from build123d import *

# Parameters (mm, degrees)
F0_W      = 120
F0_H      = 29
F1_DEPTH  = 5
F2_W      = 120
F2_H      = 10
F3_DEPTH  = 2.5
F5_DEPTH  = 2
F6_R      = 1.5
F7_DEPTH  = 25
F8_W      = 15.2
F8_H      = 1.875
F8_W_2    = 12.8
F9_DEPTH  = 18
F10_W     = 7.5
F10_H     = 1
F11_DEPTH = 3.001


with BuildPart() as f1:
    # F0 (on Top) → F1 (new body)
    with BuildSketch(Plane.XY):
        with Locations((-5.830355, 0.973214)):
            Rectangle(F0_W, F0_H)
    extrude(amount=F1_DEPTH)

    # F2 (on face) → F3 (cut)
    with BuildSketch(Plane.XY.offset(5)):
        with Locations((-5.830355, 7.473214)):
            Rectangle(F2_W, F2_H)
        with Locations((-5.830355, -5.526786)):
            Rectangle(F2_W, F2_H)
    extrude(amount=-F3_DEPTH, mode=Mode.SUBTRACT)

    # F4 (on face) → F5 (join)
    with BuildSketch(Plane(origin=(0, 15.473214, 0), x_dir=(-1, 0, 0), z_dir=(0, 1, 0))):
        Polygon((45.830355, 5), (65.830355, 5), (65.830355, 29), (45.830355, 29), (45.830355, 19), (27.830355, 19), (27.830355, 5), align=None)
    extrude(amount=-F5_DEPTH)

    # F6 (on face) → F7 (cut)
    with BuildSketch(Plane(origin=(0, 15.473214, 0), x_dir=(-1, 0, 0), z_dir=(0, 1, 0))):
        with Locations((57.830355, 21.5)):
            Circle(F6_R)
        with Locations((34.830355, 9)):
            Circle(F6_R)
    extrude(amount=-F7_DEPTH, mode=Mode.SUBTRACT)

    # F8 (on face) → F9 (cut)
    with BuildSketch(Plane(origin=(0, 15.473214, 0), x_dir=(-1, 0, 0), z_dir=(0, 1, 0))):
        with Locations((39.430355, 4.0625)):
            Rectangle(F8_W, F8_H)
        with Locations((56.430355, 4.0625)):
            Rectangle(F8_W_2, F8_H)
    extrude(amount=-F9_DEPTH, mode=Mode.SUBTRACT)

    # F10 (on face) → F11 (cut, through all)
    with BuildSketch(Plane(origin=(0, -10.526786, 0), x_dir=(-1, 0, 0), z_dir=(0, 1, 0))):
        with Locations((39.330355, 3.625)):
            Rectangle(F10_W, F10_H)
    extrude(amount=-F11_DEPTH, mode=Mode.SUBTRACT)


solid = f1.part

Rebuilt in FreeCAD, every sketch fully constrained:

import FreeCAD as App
import Part
import Sketcher

V = App.Vector


def add_polygon(sketch, points):
    """Adds a closed chain of lines whose ends are joined by coincident constraints."""
    first, n = sketch.GeometryCount, len(points)
    for a, b in zip(points, points[1:] + points[:1]):
        sketch.addGeometry(Part.LineSegment(App.Vector(*a, 0), App.Vector(*b, 0)), False)
    for i in range(n):
        sketch.addConstraint(Sketcher.Constraint("Coincident", first + i, 2, first + (i + 1) % n, 1))

doc = App.newDocument("Part")
params = doc.addObject("Spreadsheet::Sheet", "Params")
for row, (alias, value) in enumerate([
    ("sketch1_width", "120 mm"),
    ("sketch1_height", "29 mm"),
    ("pad1_length", "5 mm"),
    ("sketch2_width", "120 mm"),
    ("sketch2_height", "10 mm"),
    ("pocket1_length", "2.5 mm"),
    ("sketch3_width", "20 mm"),
    ("sketch3_width2", "18 mm"),
    ("sketch3_height", "24 mm"),
    ("sketch3_height2", "10 mm"),
    ("pad2_length", "2 mm"),
    ("sketch4_diameter", "3 mm"),
    ("pocket2_length", "25 mm"),
    ("sketch5_width", "15.2 mm"),
    ("sketch5_width2", "12.8 mm"),
    ("pocket3_length", "18 mm"),
    ("sketch6_height", "1 mm"),
    ("sketch6_width", "7.5 mm"),
], start=1):
    params.set(f"A{row}", alias)
    params.set(f"B{row}", "=" + value)
    params.setAlias(f"B{row}", alias)

body = doc.addObject("PartDesign::Body", "Body")

# Sketch on XY plane
sketch1 = doc.addObject("Sketcher::SketchObject", "Sketch")
body.addObject(sketch1)
sketch1.AttachmentSupport = (doc.XY_Plane, [""])
sketch1.MapMode = "FlatFace"
add_polygon(sketch1, [(-65.830355, 15.473214), (-65.830355, -13.526786), (54.169645, -13.526786), (54.169645, 15.473214)])  # lines 0-3
sketch1.addConstraint([
    Sketcher.Constraint("Vertical", 0),
    Sketcher.Constraint("Horizontal", 1),
    Sketcher.Constraint("Vertical", 2),
    Sketcher.Constraint("Horizontal", 3),
    Sketcher.Constraint("DistanceX", 1, 1, 1, 2, 120.0),
    Sketcher.Constraint("DistanceY", 0, 2, 0, 1, 29.0),
    Sketcher.Constraint("DistanceX", 0, 2, -1, 1, 65.830355),
    Sketcher.Constraint("DistanceY", 0, 2, -1, 1, 13.526786),
])
sketch1.setExpression("Constraints[8]", "Params.sketch1_width")
sketch1.setExpression("Constraints[9]", "Params.sketch1_height")
pad1 = doc.addObject("PartDesign::Pad", "Pad")
body.addObject(pad1)
pad1.Profile = sketch1
pad1.setExpression("Length", "Params.pad1_length")

# Sketch on XY plane
sketch2 = doc.addObject("Sketcher::SketchObject", "Sketch001")
body.addObject(sketch2)
sketch2.AttachmentSupport = (doc.XY_Plane, [""])
sketch2.MapMode = "FlatFace"
sketch2.AttachmentOffset = App.Placement(V(0, 0, 5), App.Rotation())
add_polygon(sketch2, [(-65.830355, 12.473214), (-65.830355, 2.473214), (54.169645, 2.473214), (54.169645, 12.473214)])  # lines 0-3
add_polygon(sketch2, [(-65.830355, -0.526786), (-65.830355, -10.526786), (54.169645, -10.526786), (54.169645, -0.526786)])  # lines 4-7
sketch2.addConstraint([
    Sketcher.Constraint("Vertical", 0),
    Sketcher.Constraint("Horizontal", 1),
    Sketcher.Constraint("Vertical", 2),
    Sketcher.Constraint("Horizontal", 3),
    Sketcher.Constraint("Vertical", 4),
    Sketcher.Constraint("Horizontal", 5),
    Sketcher.Constraint("Vertical", 6),
    Sketcher.Constraint("Horizontal", 7),
    Sketcher.Constraint("Vertical", 3, 2, 4, 2),
    Sketcher.Constraint("Vertical", 2, 2, 5, 2),
    Sketcher.Constraint("Equal", 2, 4),
    Sketcher.Constraint("DistanceX", 1, 1, 1, 2, 120.0),
    Sketcher.Constraint("DistanceY", 0, 2, 0, 1, 10.0),
    Sketcher.Constraint("DistanceY", 4, 2, 0, 2, 13.0),
    Sketcher.Constraint("DistanceX", 0, 2, -1, 1, 65.830355),
    Sketcher.Constraint("DistanceY", -1, 1, 0, 2, 2.473214),
])
sketch2.setExpression("Constraints[19]", "Params.sketch2_width")
sketch2.setExpression("Constraints[20]", "Params.sketch2_height")
pocket1 = doc.addObject("PartDesign::Pocket", "Pocket")
body.addObject(pocket1)
pocket1.Profile = sketch2
pocket1.setExpression("Length", "Params.pocket1_length")

# Sketch on XZ plane
sketch3 = doc.addObject("Sketcher::SketchObject", "Sketch002")
body.addObject(sketch3)
sketch3.AttachmentSupport = (doc.XZ_Plane, [""])
sketch3.MapMode = "FlatFace"
sketch3.AttachmentOffset = App.Placement(V(0, 0, -15.473214), App.Rotation())
add_polygon(sketch3, [(-65.830355, 5), (-65.830355, 29), (-45.830355, 29), (-45.830355, 19), (-27.830355, 19), (-27.830355, 5)])  # lines 0-5
sketch3.addConstraint([
    Sketcher.Constraint("Vertical", 0),
    Sketcher.Constraint("Horizontal", 1),
    Sketcher.Constraint("Vertical", 2),
    Sketcher.Constraint("Horizontal", 3),
    Sketcher.Constraint("Vertical", 4),
    Sketcher.Constraint("Horizontal", 5),
    Sketcher.Constraint("DistanceX", 1, 1, 1, 2, 20.0),
    Sketcher.Constraint("DistanceX", 3, 1, 3, 2, 18.0),
    Sketcher.Constraint("DistanceY", 0, 1, 0, 2, 24.0),
    Sketcher.Constraint("DistanceY", 2, 2, 2, 1, 10.0),
    Sketcher.Constraint("DistanceY", -1, 1, 0, 2, 29.0),
    Sketcher.Constraint("DistanceX", 0, 2, -1, 1, 65.830355),
])
sketch3.setExpression("Constraints[12]", "Params.sketch3_width")
sketch3.setExpression("Constraints[13]", "Params.sketch3_width2")
sketch3.setExpression("Constraints[14]", "Params.sketch3_height")
sketch3.setExpression("Constraints[15]", "Params.sketch3_height2")
pad2 = doc.addObject("PartDesign::Pad", "Pad001")
body.addObject(pad2)
pad2.Profile = sketch3
pad2.setExpression("Length", "Params.pad2_length")

# Sketch on XZ plane
sketch4 = doc.addObject("Sketcher::SketchObject", "Sketch003")
body.addObject(sketch4)
sketch4.AttachmentSupport = (doc.XZ_Plane, [""])
sketch4.MapMode = "FlatFace"
sketch4.AttachmentOffset = App.Placement(V(0, 0, -15.473214), App.Rotation())
sketch4.addGeometry([
    Part.Circle(V(-57.830355, 21.5, 0), V(0, 0, 1), 1.5),
    Part.Circle(V(-34.830355, 9, 0), V(0, 0, 1), 1.5),
], False)
sketch4.addConstraint([
    Sketcher.Constraint("Equal", 0, 1),
    Sketcher.Constraint("Diameter", 0, 3.0),
    Sketcher.Constraint("DistanceY", -1, 1, 1, 3, 9.0),
    Sketcher.Constraint("DistanceX", 0, 3, 1, 3, 23.0),
    Sketcher.Constraint("DistanceY", -1, 1, 0, 3, 21.5),
    Sketcher.Constraint("DistanceX", 0, 3, -1, 1, 57.830355),
])
sketch4.setExpression("Constraints[1]", "Params.sketch4_diameter")
pocket2 = doc.addObject("PartDesign::Pocket", "Pocket001")
body.addObject(pocket2)
pocket2.Profile = sketch4
pocket2.setExpression("Length", "Params.pocket2_length")
pocket2.Reversed = True

# Sketch on XZ plane
sketch5 = doc.addObject("Sketcher::SketchObject", "Sketch004")
body.addObject(sketch5)
sketch5.AttachmentSupport = (doc.XZ_Plane, [""])
sketch5.MapMode = "FlatFace"
sketch5.AttachmentOffset = App.Placement(V(0, 0, -15.473214), App.Rotation())
add_polygon(sketch5, [(-31.830355, 5), (-31.830355, 3.125), (-47.030355, 3.125), (-47.030355, 5)])  # lines 0-3
add_polygon(sketch5, [(-50.030355, 5), (-50.030355, 3.125), (-62.830355, 3.125), (-62.830355, 5)])  # lines 4-7
sketch5.addConstraint([
    Sketcher.Constraint("Vertical", 0),
    Sketcher.Constraint("Horizontal", 1),
    Sketcher.Constraint("Vertical", 2),
    Sketcher.Constraint("Horizontal", 3),
    Sketcher.Constraint("Vertical", 4),
    Sketcher.Constraint("Horizontal", 5),
    Sketcher.Constraint("Vertical", 6),
    Sketcher.Constraint("Horizontal", 7),
    Sketcher.Constraint("Horizontal", 1, 2, 4, 2),
    Sketcher.Constraint("Horizontal", 3, 2, 6, 2),
    Sketcher.Constraint("DistanceX", 1, 2, 1, 1, 15.2),
    Sketcher.Constraint("DistanceX", 5, 2, 5, 1, 12.8),
    Sketcher.Constraint("DistanceY", -1, 1, 2, 2, 5.0),
    Sketcher.Constraint("DistanceX", 4, 2, 1, 2, 3.0),
    Sketcher.Constraint("DistanceY", 0, 2, 0, 1, 1.875),
    Sketcher.Constraint("DistanceX", 0, 2, -1, 1, 31.830355),
])
sketch5.setExpression("Constraints[18]", "Params.sketch5_width")
sketch5.setExpression("Constraints[19]", "Params.sketch5_width2")
pocket3 = doc.addObject("PartDesign::Pocket", "Pocket002")
body.addObject(pocket3)
pocket3.Profile = sketch5
pocket3.setExpression("Length", "Params.pocket3_length")
pocket3.Reversed = True

# Sketch on XZ plane
sketch6 = doc.addObject("Sketcher::SketchObject", "Sketch005")
body.addObject(sketch6)
sketch6.AttachmentSupport = (doc.XZ_Plane, [""])
sketch6.MapMode = "FlatFace"
sketch6.AttachmentOffset = App.Placement(V(0, 0, 10.526786), App.Rotation())
add_polygon(sketch6, [(-35.580355, 4.125), (-35.580355, 3.125), (-43.080355, 3.125), (-43.080355, 4.125)])  # lines 0-3
sketch6.addConstraint([
    Sketcher.Constraint("Vertical", 0),
    Sketcher.Constraint("Horizontal", 1),
    Sketcher.Constraint("Vertical", 2),
    Sketcher.Constraint("Horizontal", 3),
    Sketcher.Constraint("DistanceY", 0, 2, 0, 1, 1.0),
    Sketcher.Constraint("DistanceX", 1, 2, 1, 1, 7.5),
    Sketcher.Constraint("DistanceY", -1, 1, 0, 2, 3.125),
    Sketcher.Constraint("DistanceX", 0, 2, -1, 1, 35.580355),
])
sketch6.setExpression("Constraints[8]", "Params.sketch6_height")
sketch6.setExpression("Constraints[9]", "Params.sketch6_width")
pocket4 = doc.addObject("PartDesign::Pocket", "Pocket003")
body.addObject(pocket4)
pocket4.Profile = sketch6
pocket4.Type = "ThroughAll"
pocket4.Reversed = True

doc.recompute()
